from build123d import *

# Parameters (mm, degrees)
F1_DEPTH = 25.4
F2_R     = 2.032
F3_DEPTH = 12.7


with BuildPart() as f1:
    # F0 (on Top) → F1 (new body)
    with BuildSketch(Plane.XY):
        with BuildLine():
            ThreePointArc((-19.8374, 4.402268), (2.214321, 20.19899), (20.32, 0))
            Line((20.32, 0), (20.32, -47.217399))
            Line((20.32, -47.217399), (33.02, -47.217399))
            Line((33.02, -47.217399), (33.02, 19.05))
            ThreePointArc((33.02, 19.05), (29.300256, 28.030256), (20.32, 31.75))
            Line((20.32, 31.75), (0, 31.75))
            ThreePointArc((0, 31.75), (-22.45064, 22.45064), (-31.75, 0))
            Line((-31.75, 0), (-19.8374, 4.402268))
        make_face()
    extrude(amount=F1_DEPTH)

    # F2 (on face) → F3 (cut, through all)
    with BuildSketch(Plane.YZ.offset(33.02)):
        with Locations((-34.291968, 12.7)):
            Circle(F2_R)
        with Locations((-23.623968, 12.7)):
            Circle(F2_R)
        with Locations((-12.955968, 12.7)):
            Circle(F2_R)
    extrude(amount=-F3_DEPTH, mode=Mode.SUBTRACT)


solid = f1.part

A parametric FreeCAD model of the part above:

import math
import FreeCAD as App
import Part
import Sketcher
from FreeCAD import Vector
Q = App.Units.Quantity

doc = App.newDocument("Part")
body = doc.addObject("PartDesign::Body", "Body")

sketch1 = body.newObject("Sketcher::SketchObject", "Sketch")
sketch1.AttachmentSupport = (doc.getObject("XY_Plane"), [""])
sketch1.MapMode = "FlatFace"
sketch1.addGeometry([
    Part.ArcOfCircle(Part.Circle(Vector(0, 0, 0), Vector(0, 0, 1), 20), math.radians(0), math.radians(167)),
    Part.LineSegment(Vector(20, 0, 0), Vector(20, -47, 0)),
    Part.LineSegment(Vector(20, -47, 0), Vector(33, -47, 0)),
    Part.LineSegment(Vector(33, -47, 0), Vector(33, 19, 0)),
    Part.ArcOfCircle(Part.Circle(Vector(20, 19, 0), Vector(0, 0, 1), 13), math.radians(0), math.radians(90)),
    Part.LineSegment(Vector(20, 32, 0), Vector(0, 32, 0)),
    Part.ArcOfCircle(Part.Circle(Vector(0, 0, 0), Vector(0, 0, 1), 32), math.radians(90), math.radians(180)),
    Part.LineSegment(Vector(-32, 0, 0), Vector(-20, 4, 0)),
], False)
sketch1.addConstraint([
    Sketcher.Constraint("Tangent", 0, 1, 1, 1),
    Sketcher.Constraint("Coincident", 1, 2, 2, 1),
    Sketcher.Constraint("Coincident", 2, 2, 3, 1),
    Sketcher.Constraint("Tangent", 3, 2, 4, 1),
    Sketcher.Constraint("Tangent", 4, 2, 5, 1),
    Sketcher.Constraint("Tangent", 5, 2, 6, 1),
    Sketcher.Constraint("Coincident", 6, 2, 7, 1),
    Sketcher.Constraint("Coincident", 7, 2, 0, 2),
    Sketcher.Constraint("Vertical", 1),
    Sketcher.Constraint("Horizontal", 2),
    Sketcher.Constraint("Vertical", 3),
    Sketcher.Constraint("Horizontal", 5),
    Sketcher.Constraint("Coincident", 0, 3, -1, 1),
    Sketcher.Constraint("Coincident", 6, 3, -1, 1),
    Sketcher.Constraint("PointOnObject", 6, 2, -1),
    Sketcher.Constraint("Vertical", 4, 3, 0, 1),
    Sketcher.Constraint("Radius", 0, Q("0.8 in")),
    Sketcher.Constraint("Radius", 4, Q("0.5 in")),
    Sketcher.Constraint("Radius", 6, Q("1.25 in")),
    Sketcher.Constraint("Distance", 7, Q("0.5 in")),
    Sketcher.Constraint("DistanceY", 1, 2, 1, 1, Q("47.217399 mm")),
])
pad1 = body.newObject("PartDesign::Pad", "Pad")
pad1.Profile = sketch1
pad1.Length = Q("1 in")

sketch2 = body.newObject("Sketcher::SketchObject", "Sketch001")
sketch2.AttachmentSupport = (doc.getObject("YZ_Plane"), [""])
sketch2.MapMode = "FlatFace"
sketch2.AttachmentOffset = App.Placement(Vector(0, 0, 1.3 * 25.4), App.Rotation())
sketch2.addGeometry([
    Part.Circle(Vector(-34.3, 12.7, 0), Vector(0, 0, 1), 2),
    Part.Circle(Vector(-23.6, 12.7, 0), Vector(0, 0, 1), 2),
    Part.Circle(Vector(-13, 12.7, 0), Vector(0, 0, 1), 2),
], False)
sketch2.addConstraint([
    Sketcher.Constraint("Equal", 0, 1),
    Sketcher.Constraint("Equal", 1, 2),
    Sketcher.Constraint("Horizontal", 0, 3, 1, 3),
    Sketcher.Constraint("Horizontal", 1, 3, 2, 3),
    Sketcher.Constraint("Diameter", 0, Q("0.16 in")),
    Sketcher.Constraint("DistanceY", -1, 1, 0, 3, Q("0.5 in")),
    Sketcher.Constraint("DistanceX", 0, 3, 1, 3, Q("0.42 in")),
    Sketcher.Constraint("DistanceX", 1, 3, 2, 3, Q("0.42 in")),
    Sketcher.Constraint("DistanceX", 1, 3, -1, 1, Q("23.623968 mm")),
])
pocket1 = body.newObject("PartDesign::Pocket", "Pocket")
pocket1.Profile = sketch2
pocket1.Type = "ThroughAll"

doc.recompute()
